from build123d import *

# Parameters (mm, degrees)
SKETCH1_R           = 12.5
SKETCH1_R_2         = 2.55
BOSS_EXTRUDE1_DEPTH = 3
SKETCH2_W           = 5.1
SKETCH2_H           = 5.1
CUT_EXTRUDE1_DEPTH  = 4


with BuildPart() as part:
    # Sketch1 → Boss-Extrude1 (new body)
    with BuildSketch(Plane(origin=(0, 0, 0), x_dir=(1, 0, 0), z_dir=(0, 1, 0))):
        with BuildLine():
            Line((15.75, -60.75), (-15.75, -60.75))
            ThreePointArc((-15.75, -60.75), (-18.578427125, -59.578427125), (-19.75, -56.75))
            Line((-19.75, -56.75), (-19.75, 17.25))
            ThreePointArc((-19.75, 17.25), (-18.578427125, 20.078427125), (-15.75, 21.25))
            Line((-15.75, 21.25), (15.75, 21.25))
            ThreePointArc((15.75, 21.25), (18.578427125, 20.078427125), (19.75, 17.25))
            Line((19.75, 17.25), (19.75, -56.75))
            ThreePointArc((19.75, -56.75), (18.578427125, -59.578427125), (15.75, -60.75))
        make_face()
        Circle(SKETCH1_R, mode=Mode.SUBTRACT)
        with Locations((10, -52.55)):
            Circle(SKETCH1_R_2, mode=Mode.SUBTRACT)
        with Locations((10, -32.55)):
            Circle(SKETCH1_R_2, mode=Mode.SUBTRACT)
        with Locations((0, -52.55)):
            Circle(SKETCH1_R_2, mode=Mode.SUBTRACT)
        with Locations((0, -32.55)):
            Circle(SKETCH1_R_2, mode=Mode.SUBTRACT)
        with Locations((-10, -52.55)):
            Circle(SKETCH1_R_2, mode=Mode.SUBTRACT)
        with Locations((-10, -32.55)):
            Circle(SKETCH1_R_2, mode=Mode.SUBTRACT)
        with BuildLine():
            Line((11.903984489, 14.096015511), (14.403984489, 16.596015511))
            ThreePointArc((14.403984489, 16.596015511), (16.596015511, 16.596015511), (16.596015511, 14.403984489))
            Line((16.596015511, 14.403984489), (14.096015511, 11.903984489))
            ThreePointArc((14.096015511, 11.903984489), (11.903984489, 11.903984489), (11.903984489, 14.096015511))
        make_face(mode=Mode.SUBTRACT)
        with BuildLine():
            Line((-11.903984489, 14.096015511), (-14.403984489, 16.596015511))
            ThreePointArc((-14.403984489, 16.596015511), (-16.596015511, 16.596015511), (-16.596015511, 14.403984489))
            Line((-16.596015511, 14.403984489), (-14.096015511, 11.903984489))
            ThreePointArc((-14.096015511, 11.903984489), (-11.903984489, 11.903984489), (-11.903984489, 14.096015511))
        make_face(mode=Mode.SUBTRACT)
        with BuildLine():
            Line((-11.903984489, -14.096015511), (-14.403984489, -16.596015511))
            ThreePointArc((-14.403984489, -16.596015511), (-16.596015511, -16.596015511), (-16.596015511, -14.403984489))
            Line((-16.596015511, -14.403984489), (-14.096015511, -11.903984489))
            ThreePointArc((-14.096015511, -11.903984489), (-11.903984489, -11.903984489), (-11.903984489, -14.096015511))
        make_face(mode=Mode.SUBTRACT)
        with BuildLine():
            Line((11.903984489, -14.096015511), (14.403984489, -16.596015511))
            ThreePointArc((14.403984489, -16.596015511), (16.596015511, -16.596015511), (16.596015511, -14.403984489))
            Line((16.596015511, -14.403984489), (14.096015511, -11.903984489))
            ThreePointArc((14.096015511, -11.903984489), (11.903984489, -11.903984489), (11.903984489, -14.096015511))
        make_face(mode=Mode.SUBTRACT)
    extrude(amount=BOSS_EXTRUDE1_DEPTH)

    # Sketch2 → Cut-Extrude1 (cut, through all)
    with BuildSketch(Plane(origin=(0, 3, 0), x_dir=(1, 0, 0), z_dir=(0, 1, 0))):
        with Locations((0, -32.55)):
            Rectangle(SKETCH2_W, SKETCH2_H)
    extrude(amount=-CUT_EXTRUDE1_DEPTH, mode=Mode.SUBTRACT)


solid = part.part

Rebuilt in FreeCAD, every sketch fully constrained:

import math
import FreeCAD as App
import Part
import Sketcher

V = App.Vector
Q = App.Units.Quantity


def add_polygon(sketch, points):
    """Adds a closed chain of lines whose ends are joined by coincident constraints."""
    first, n = sketch.GeometryCount, len(points)
    for a, b in zip(points, points[1:] + points[:1]):
        sketch.addGeometry(Part.LineSegment(App.Vector(*a, 0), App.Vector(*b, 0)), False)
    for i in range(n):
        sketch.addConstraint(Sketcher.Constraint("Coincident", first + i, 2, first + (i + 1) % n, 1))

doc = App.newDocument("Part")
body = doc.addObject("PartDesign::Body", "Body")

# Sketch on XZ plane
sketch1 = body.newObject("Sketcher::SketchObject", "Sketch")
sketch1.AttachmentSupport = (doc.getObject("XZ_Plane"), [""])
sketch1.MapMode = "FlatFace"
sketch1.addGeometry(Part.LineSegment(V(-15.8, 60.8, 0), V(15.8, 60.8, 0)), False)
sketch1.addGeometry(Part.ArcOfCircle(Part.Circle(V(15.8, 56.8, 0), V(0, 0, 1), 4), math.radians(0), math.radians(90)), False)
sketch1.addGeometry(Part.LineSegment(V(19.8, 56.8, 0), V(19.8, -17.2, 0)), False)
sketch1.addGeometry(Part.ArcOfCircle(Part.Circle(V(15.8, -17.3, 0), V(0, 0, 1), 4), math.radians(-90), math.radians(0)), False)
sketch1.addGeometry(Part.LineSegment(V(15.8, -21.2, 0), V(-15.8, -21.2, 0)), False)
sketch1.addGeometry(Part.ArcOfCircle(Part.Circle(V(-15.8, -17.3, 0), V(0, 0, 1), 4), math.radians(180), math.radians(270)), False)
sketch1.addGeometry(Part.LineSegment(V(-19.8, -17.2, 0), V(-19.8, 56.8, 0)), False)
sketch1.addGeometry(Part.ArcOfCircle(Part.Circle(V(-15.8, 56.8, 0), V(0, 0, 1), 4), math.radians(90), math.radians(180)), False)
sketch1.addGeometry(Part.Circle(V(10, 52.5, 0), V(0, 0, 1), 2.5), False)
sketch1.addGeometry(Part.Circle(V(10, 32.5, 0), V(0, 0, 1), 2.5), False)
sketch1.addGeometry(Part.Circle(V(0, 52.5, 0), V(0, 0, 1), 2.5), False)
sketch1.addGeometry(Part.Circle(V(-10, 52.5, 0), V(0, 0, 1), 2.5), False)
sketch1.addGeometry(Part.Circle(V(0, 32.5, 0), V(0, 0, 1), 2.5), False)
sketch1.addGeometry(Part.Circle(V(-10, 32.5, 0), V(0, 0, 1), 2.5), False)
sketch1.addGeometry(Part.ArcOfCircle(Part.Circle(V(13, 13, 0), V(0, 0, 1), 1.6), math.radians(135), math.radians(315)), False)
sketch1.addGeometry(Part.LineSegment(V(14.1, 11.9, 0), V(16.6, 14.4, 0)), False)
sketch1.addGeometry(Part.ArcOfCircle(Part.Circle(V(15.5, 15.5, 0), V(0, 0, 1), 1.6), math.radians(-45), math.radians(135)), False)
sketch1.addGeometry(Part.LineSegment(V(14.4, 16.6, 0), V(11.9, 14.1, 0)), False)
sketch1.addGeometry(Part.LineSegment(V(11.9, -14.1, 0), V(14.4, -16.6, 0)), False)
sketch1.addGeometry(Part.ArcOfCircle(Part.Circle(V(15.5, -15.5, 0), V(0, 0, 1), 1.6), math.radians(-135), math.radians(45)), False)
sketch1.addGeometry(Part.LineSegment(V(16.6, -14.4, 0), V(14.1, -11.9, 0)), False)
sketch1.addGeometry(Part.ArcOfCircle(Part.Circle(V(13, -13, 0), V(0, 0, 1), 1.6), math.radians(45), math.radians(225)), False)
sketch1.addGeometry(Part.LineSegment(V(-11.9, 14.1, 0), V(-14.4, 16.6, 0)), False)
sketch1.addGeometry(Part.ArcOfCircle(Part.Circle(V(-15.5, 15.5, 0), V(0, 0, 1), 1.6), math.radians(45), math.radians(225)), False)
sketch1.addGeometry(Part.LineSegment(V(-16.6, 14.4, 0), V(-14.1, 11.9, 0)), False)
sketch1.addGeometry(Part.ArcOfCircle(Part.Circle(V(-13, 13, 0), V(0, 0, 1), 1.6), math.radians(-135), math.radians(45)), False)
sketch1.addGeometry(Part.Circle(V(0, 0, 0), V(0, 0, 1), 12.5), False)
sketch1.addGeometry(Part.ArcOfCircle(Part.Circle(V(-13, -13, 0), V(0, 0, 1), 1.6), math.radians(-45), math.radians(135)), False)
sketch1.addGeometry(Part.LineSegment(V(-14.1, -11.9, 0), V(-16.6, -14.4, 0)), False)
sketch1.addGeometry(Part.ArcOfCircle(Part.Circle(V(-15.5, -15.5, 0), V(0, 0, 1), 1.6), math.radians(135), math.radians(315)), False)
sketch1.addGeometry(Part.LineSegment(V(-14.4, -16.6, 0), V(-11.9, -14.1, 0)), False)
sketch1.addConstraint(Sketcher.Constraint("Tangent", 0, 2, 1, 2))
sketch1.addConstraint(Sketcher.Constraint("Tangent", 1, 1, 2, 1))
sketch1.addConstraint(Sketcher.Constraint("Tangent", 2, 2, 3, 2))
sketch1.addConstraint(Sketcher.Constraint("Tangent", 3, 1, 4, 1))
sketch1.addConstraint(Sketcher.Constraint("Tangent", 4, 2, 5, 2))
sketch1.addConstraint(Sketcher.Constraint("Tangent", 5, 1, 6, 1))
sketch1.addConstraint(Sketcher.Constraint("Tangent", 6, 2, 7, 2))
sketch1.addConstraint(Sketcher.Constraint("Tangent", 7, 1, 0, 1))
sketch1.addConstraint(Sketcher.Constraint("Tangent", 14, 2, 15, 1))
sketch1.addConstraint(Sketcher.Constraint("Tangent", 15, 2, 16, 1))
sketch1.addConstraint(Sketcher.Constraint("Tangent", 16, 2, 17, 1))
sketch1.addConstraint(Sketcher.Constraint("Tangent", 17, 2, 14, 1))
sketch1.addConstraint(Sketcher.Constraint("Tangent", 18, 2, 19, 1))
sketch1.addConstraint(Sketcher.Constraint("Tangent", 19, 2, 20, 1))
sketch1.addConstraint(Sketcher.Constraint("Tangent", 20, 2, 21, 1))
sketch1.addConstraint(Sketcher.Constraint("Tangent", 21, 2, 18, 1))
sketch1.addConstraint(Sketcher.Constraint("Tangent", 22, 2, 23, 1))
sketch1.addConstraint(Sketcher.Constraint("Tangent", 23, 2, 24, 1))
sketch1.addConstraint(Sketcher.Constraint("Tangent", 24, 2, 25, 1))
sketch1.addConstraint(Sketcher.Constraint("Tangent", 25, 2, 22, 1))
sketch1.addConstraint(Sketcher.Constraint("Tangent", 27, 2, 28, 1))
sketch1.addConstraint(Sketcher.Constraint("Tangent", 28, 2, 29, 1))
sketch1.addConstraint(Sketcher.Constraint("Tangent", 29, 2, 30, 1))
sketch1.addConstraint(Sketcher.Constraint("Tangent", 30, 2, 27, 1))
sketch1.addConstraint(Sketcher.Constraint("Horizontal", 0))
sketch1.addConstraint(Sketcher.Constraint("Vertical", 2))
sketch1.addConstraint(Sketcher.Constraint("Horizontal", 4))
sketch1.addConstraint(Sketcher.Constraint("Vertical", 6))
sketch1.addConstraint(Sketcher.Constraint("Coincident", 26, 3, -1, 1))
sketch1.addConstraint(Sketcher.Constraint("Equal", 1, 3))
sketch1.addConstraint(Sketcher.Constraint("Equal", 3, 5))
sketch1.addConstraint(Sketcher.Constraint("Equal", 5, 7))
sketch1.addConstraint(Sketcher.Constraint("Equal", 8, 9))
sketch1.addConstraint(Sketcher.Constraint("Equal", 9, 10))
sketch1.addConstraint(Sketcher.Constraint("Equal", 10, 11))
sketch1.addConstraint(Sketcher.Constraint("Equal", 11, 12))
sketch1.addConstraint(Sketcher.Constraint("Equal", 12, 13))
sketch1.addConstraint(Sketcher.Constraint("Equal", 14, 16))
sketch1.addConstraint(Sketcher.Constraint("Equal", 16, 19))
sketch1.addConstraint(Sketcher.Constraint("Equal", 19, 21))
sketch1.addConstraint(Sketcher.Constraint("Equal", 21, 23))
sketch1.addConstraint(Sketcher.Constraint("Equal", 23, 25))
sketch1.addConstraint(Sketcher.Constraint("Equal", 25, 27))
sketch1.addConstraint(Sketcher.Constraint("Equal", 27, 29))
sketch1.addConstraint(Sketcher.Constraint("Symmetric", 19, 3, 23, 3, -1, 1))
sketch1.addConstraint(Sketcher.Constraint("Symmetric", 21, 3, 25, 3, -1, 1))
sketch1.addConstraint(Sketcher.Constraint("Symmetric", 14, 3, 27, 3, -1, 1))
sketch1.addConstraint(Sketcher.Constraint("Symmetric", 16, 3, 29, 3, -1, 1))
sketch1.addConstraint(Sketcher.Constraint("Symmetric", 8, 3, 11, 3, -2))
sketch1.addConstraint(Sketcher.Constraint("Symmetric", 9, 3, 13, 3, -2))
sketch1.addConstraint(Sketcher.Constraint("Symmetric", 16, 3, 23, 3, -2))
sketch1.addConstraint(Sketcher.Constraint("Symmetric", 14, 3, 25, 3, -2))
sketch1.addConstraint(Sketcher.Constraint("PointOnObject", 10, 3, -2))
sketch1.addConstraint(Sketcher.Constraint("PointOnObject", 12, 3, -2))
sketch1.addConstraint(Sketcher.Constraint("Perpendicular", 17, 18))
sketch1.addConstraint(Sketcher.Constraint("Horizontal", 8, 3, 10, 3))
sketch1.addConstraint(Sketcher.Constraint("Horizontal", 9, 3, 12, 3))
sketch1.addConstraint(Sketcher.Constraint("Vertical", 8, 3, 9, 3))
sketch1.addConstraint(Sketcher.Constraint("Diameter", 26, Q("25 mm")))
sketch1.addConstraint(Sketcher.Constraint("Radius", 1, Q("4 mm")))
sketch1.addConstraint(Sketcher.Constraint("Diameter", 8, Q("5.1 mm")))
sketch1.addConstraint(Sketcher.Constraint("DistanceY", 2, 2, 2, 1, Q("74 mm")))
sketch1.addConstraint(Sketcher.Constraint("Radius", 14, Q("1.55 mm")))
sketch1.addConstraint(Sketcher.Constraint("DistanceX", 0, 1, 0, 2, Q("31.5 mm")))
sketch1.addConstraint(Sketcher.Constraint("DistanceX", -1, 1, 8, 3, Q("10 mm")))
sketch1.addConstraint(Sketcher.Constraint("DistanceX", -1, 1, 14, 3, Q("13 mm")))
sketch1.addConstraint(Sketcher.Constraint("DistanceY", -1, 1, 14, 3, Q("13 mm")))
sketch1.addConstraint(Sketcher.Constraint("DistanceY", 9, 3, 8, 3, Q("20 mm")))
sketch1.addConstraint(Sketcher.Constraint("DistanceY", 19, 3, 16, 3, Q("31 mm")))
sketch1.addConstraint(Sketcher.Constraint("DistanceY", 8, 3, 1, 3, Q("4.2 mm")))
sketch1.addConstraint(Sketcher.Constraint("DistanceX", -1, 1, 1, 3, Q("15.75 mm")))
sketch1.addConstraint(Sketcher.Constraint("DistanceY", -1, 1, 1, 3, Q("56.75 mm")))
pad1 = body.newObject("PartDesign::Pad", "Pad")
pad1.Profile = sketch1
pad1.Length = 3
pad1.Reversed = True

# Sketch on XZ plane
sketch2 = body.newObject("Sketcher::SketchObject", "Sketch001")
sketch2.AttachmentSupport = (doc.getObject("XZ_Plane"), [""])
sketch2.MapMode = "FlatFace"
sketch2.AttachmentOffset = App.Placement(V(0, 0, -3), App.Rotation())
add_polygon(sketch2, [(-3, 30), (-3, 35), (3, 35), (3, 30)])  # lines 0-3
sketch2.addConstraint(Sketcher.Constraint("Vertical", 0))
sketch2.addConstraint(Sketcher.Constraint("Horizontal", 1))
sketch2.addConstraint(Sketcher.Constraint("Vertical", 2))
sketch2.addConstraint(Sketcher.Constraint("Horizontal", 3))
sketch2.addConstraint(Sketcher.Constraint("Equal", 3, 0))
sketch2.addConstraint(Sketcher.Constraint("DistanceX", 1, 1, 1, 2, Q("5.1 mm")))
sketch2.addConstraint(Sketcher.Constraint("DistanceY", -1, 1, 2, 2, Q("30 mm")))
sketch2.addConstraint(Sketcher.Constraint("DistanceX", 0, 2, -1, 1, Q("2.55 mm")))
pocket1 = body.newObject("PartDesign::Pocket", "Pocket")
pocket1.Profile = sketch2
pocket1.Type = "ThroughAll"
pocket1.Reversed = True

doc.recompute()
